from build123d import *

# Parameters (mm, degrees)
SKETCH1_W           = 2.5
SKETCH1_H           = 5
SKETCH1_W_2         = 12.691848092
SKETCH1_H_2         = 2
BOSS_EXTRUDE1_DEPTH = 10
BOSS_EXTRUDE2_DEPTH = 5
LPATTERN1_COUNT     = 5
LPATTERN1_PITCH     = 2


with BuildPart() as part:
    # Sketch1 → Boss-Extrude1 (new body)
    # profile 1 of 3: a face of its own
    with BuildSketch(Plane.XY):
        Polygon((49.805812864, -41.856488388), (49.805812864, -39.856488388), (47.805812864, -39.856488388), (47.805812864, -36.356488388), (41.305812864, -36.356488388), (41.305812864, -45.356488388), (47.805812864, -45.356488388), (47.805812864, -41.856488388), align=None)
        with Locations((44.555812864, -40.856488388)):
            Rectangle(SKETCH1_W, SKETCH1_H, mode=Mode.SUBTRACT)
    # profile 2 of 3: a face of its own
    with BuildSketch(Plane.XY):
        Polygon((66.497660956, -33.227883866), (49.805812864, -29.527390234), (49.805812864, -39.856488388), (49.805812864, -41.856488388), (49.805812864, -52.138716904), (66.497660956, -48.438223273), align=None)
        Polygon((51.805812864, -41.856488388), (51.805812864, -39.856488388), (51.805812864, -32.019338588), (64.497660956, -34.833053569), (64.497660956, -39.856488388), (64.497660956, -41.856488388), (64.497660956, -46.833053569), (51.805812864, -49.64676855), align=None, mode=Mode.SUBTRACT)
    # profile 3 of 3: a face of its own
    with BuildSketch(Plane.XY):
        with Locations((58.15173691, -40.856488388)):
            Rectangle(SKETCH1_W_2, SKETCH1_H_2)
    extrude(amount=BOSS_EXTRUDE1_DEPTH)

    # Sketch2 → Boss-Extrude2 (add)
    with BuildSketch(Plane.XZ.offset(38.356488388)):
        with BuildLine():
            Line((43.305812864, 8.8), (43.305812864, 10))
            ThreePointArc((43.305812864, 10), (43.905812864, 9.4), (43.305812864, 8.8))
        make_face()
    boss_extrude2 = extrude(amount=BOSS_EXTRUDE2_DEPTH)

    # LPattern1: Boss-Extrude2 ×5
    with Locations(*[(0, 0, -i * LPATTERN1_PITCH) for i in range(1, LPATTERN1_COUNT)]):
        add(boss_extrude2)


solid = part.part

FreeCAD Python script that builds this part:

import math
import FreeCAD as App
import Part
import Sketcher
from FreeCAD import Vector
Q = App.Units.Quantity


def add_polygon(sketch, points):
    """Adds a closed chain of lines whose ends are joined by coincident constraints."""
    first, n = sketch.GeometryCount, len(points)
    for a, b in zip(points, points[1:] + points[:1]):
        sketch.addGeometry(Part.LineSegment(App.Vector(*a, 0), App.Vector(*b, 0)), False)
    for i in range(n):
        sketch.addConstraint(Sketcher.Constraint("Coincident", first + i, 2, first + (i + 1) % n, 1))

doc = App.newDocument("Part")
body = doc.addObject("PartDesign::Body", "Body")

sketch1 = body.newObject("Sketcher::SketchObject", "Sketch")
sketch1.AttachmentSupport = (doc.getObject("XY_Plane"), [""])
sketch1.MapMode = "FlatFace"
add_polygon(sketch1, [(47.8, -41.9), (49.8, -41.9), (49.8, -52.1), (66.5, -48.4), (66.5, -33.2), (49.8, -29.5), (49.8, -39.9), (47.8, -39.9), (47.8, -36.4), (41.3, -36.4), (41.3, -45.4), (47.8, -45.4)])
add_polygon(sketch1, [(45.8, -43.4), (43.3, -43.4), (43.3, -38.4), (45.8, -38.4)])
add_polygon(sketch1, [(64.5, -46.8), (51.8, -49.6), (51.8, -41.9), (64.5, -41.9)])
add_polygon(sketch1, [(51.8, -39.9), (51.8, -32), (64.5, -34.8), (64.5, -39.9)])
sketch1.addConstraint([
    Sketcher.Constraint("Horizontal", 0),
    Sketcher.Constraint("Vertical", 1),
    Sketcher.Constraint("Vertical", 3),
    Sketcher.Constraint("Vertical", 5),
    Sketcher.Constraint("Horizontal", 6),
    Sketcher.Constraint("Vertical", 7),
    Sketcher.Constraint("Horizontal", 8),
    Sketcher.Constraint("Vertical", 9),
    Sketcher.Constraint("Horizontal", 10),
    Sketcher.Constraint("Vertical", 11),
    Sketcher.Constraint("Horizontal", 12),
    Sketcher.Constraint("Vertical", 13),
    Sketcher.Constraint("Horizontal", 14),
    Sketcher.Constraint("Vertical", 15),
    Sketcher.Constraint("Vertical", 17),
    Sketcher.Constraint("Horizontal", 18),
    Sketcher.Constraint("Vertical", 19),
    Sketcher.Constraint("Vertical", 20),
    Sketcher.Constraint("Vertical", 22),
    Sketcher.Constraint("Horizontal", 23),
    Sketcher.Constraint("Parallel", 2, 16),
    Sketcher.Constraint("Parallel", 4, 21),
    Sketcher.Constraint("Horizontal", 11, 2, 17, 2),
    Sketcher.Constraint("Horizontal", 6, 2, 22, 2),
    Sketcher.Constraint("Vertical", 1, 2, 4, 2),
    Sketcher.Constraint("Vertical", 7, 2, 10, 2),
    Sketcher.Constraint("Vertical", 17, 2, 20, 2),
    Sketcher.Constraint("Vertical", 19, 2, 21, 2),
    Sketcher.Constraint("Equal", 7, 11),
    Sketcher.Constraint("Equal", 2, 4),
    Sketcher.Constraint("DistanceX", 0, 1, 0, 2, Q("2 mm")),
    Sketcher.Constraint("DistanceY", 9, 2, 9, 1, Q("9 mm")),
    Sketcher.Constraint("DistanceY", 13, 1, 13, 2, Q("5 mm")),
    Sketcher.Constraint("Distance", 16, Q("13 mm")),
    Sketcher.Constraint("DistanceX", 8, 2, 8, 1, Q("6.5 mm")),
    Sketcher.Constraint("DistanceX", 12, 2, 12, 1, Q("2.5 mm")),
    Sketcher.Constraint("DistanceY", 7, 1, 7, 2, Q("3.5 mm")),
    Sketcher.Constraint("Angle", 2, Q("12.5 deg")),
    Sketcher.Constraint("DistanceX", 9, 2, 12, 2, Q("2 mm")),
    Sketcher.Constraint("DistanceY", 9, 2, 12, 2, Q("2 mm")),
    Sketcher.Constraint("DistanceX", 1, 2, 16, 2, Q("2 mm")),
    Sketcher.Constraint("DistanceX", 18, 2, 2, 2, Q("2 mm")),
    Sketcher.Constraint("DistanceY", 19, 2, 21, 2, Q("12 mm")),
    Sketcher.Constraint("DistanceY", 5, 2, 5, 1, Q("10.329098 mm")),
    Sketcher.Constraint("DistanceY", 1, 2, 1, 1, Q("10.282229 mm")),
    Sketcher.Constraint("DistanceY", 17, 1, 17, 2, Q("7.79028 mm")),
    Sketcher.Constraint("DistanceY", 0, 2, -1, 1, Q("41.856488 mm")),
    Sketcher.Constraint("DistanceX", -1, 1, 2, 2, Q("66.497661 mm")),
])
pad1 = body.newObject("PartDesign::Pad", "Pad")
pad1.Profile = sketch1
pad1.Length = 10

sketch2 = body.newObject("Sketcher::SketchObject", "Sketch001")
sketch2.AttachmentSupport = (doc.getObject("XZ_Plane"), [""])
sketch2.MapMode = "FlatFace"
sketch2.AttachmentOffset = App.Placement(Vector(0, 0, 38.356488), App.Rotation())
sketch2.addGeometry([
    Part.LineSegment(Vector(43.3, 10, 0), Vector(43.3, 8.8, 0)),
    Part.ArcOfCircle(Part.Circle(Vector(43.3, 9.4, 0), Vector(0, 0, 1), 0.6), math.radians(-90), math.radians(90)),
], False)
sketch2.addConstraint([
    Sketcher.Constraint("Coincident", 0, 1, 1, 2),
    Sketcher.Constraint("Coincident", 1, 1, 0, 2),
    Sketcher.Constraint("Vertical", 0),
    Sketcher.Constraint("Vertical", 1, 3, 0, 1),
    Sketcher.Constraint("Radius", 1, Q("0.6 mm")),
    Sketcher.Constraint("DistanceY", -1, 1, 0, 1, Q("10 mm")),
    Sketcher.Constraint("DistanceX", -1, 1, 1, 3, Q("43.305813 mm")),
])
pad2 = body.newObject("PartDesign::Pad", "Pad001")
pad2.Profile = sketch2
pad2.Length = 5
doc.recompute()

linearpattern = body.newObject("PartDesign::LinearPattern", "LinearPattern")
linearpattern.Originals = [pad2]
linearpattern.Direction = (doc.getObject("Z_Axis"), [""])
linearpattern.Mode = "offset"
linearpattern.Offset = 2
linearpattern.Occurrences = 5
linearpattern.Reversed = True
body.Tip = linearpattern

doc.recompute()
